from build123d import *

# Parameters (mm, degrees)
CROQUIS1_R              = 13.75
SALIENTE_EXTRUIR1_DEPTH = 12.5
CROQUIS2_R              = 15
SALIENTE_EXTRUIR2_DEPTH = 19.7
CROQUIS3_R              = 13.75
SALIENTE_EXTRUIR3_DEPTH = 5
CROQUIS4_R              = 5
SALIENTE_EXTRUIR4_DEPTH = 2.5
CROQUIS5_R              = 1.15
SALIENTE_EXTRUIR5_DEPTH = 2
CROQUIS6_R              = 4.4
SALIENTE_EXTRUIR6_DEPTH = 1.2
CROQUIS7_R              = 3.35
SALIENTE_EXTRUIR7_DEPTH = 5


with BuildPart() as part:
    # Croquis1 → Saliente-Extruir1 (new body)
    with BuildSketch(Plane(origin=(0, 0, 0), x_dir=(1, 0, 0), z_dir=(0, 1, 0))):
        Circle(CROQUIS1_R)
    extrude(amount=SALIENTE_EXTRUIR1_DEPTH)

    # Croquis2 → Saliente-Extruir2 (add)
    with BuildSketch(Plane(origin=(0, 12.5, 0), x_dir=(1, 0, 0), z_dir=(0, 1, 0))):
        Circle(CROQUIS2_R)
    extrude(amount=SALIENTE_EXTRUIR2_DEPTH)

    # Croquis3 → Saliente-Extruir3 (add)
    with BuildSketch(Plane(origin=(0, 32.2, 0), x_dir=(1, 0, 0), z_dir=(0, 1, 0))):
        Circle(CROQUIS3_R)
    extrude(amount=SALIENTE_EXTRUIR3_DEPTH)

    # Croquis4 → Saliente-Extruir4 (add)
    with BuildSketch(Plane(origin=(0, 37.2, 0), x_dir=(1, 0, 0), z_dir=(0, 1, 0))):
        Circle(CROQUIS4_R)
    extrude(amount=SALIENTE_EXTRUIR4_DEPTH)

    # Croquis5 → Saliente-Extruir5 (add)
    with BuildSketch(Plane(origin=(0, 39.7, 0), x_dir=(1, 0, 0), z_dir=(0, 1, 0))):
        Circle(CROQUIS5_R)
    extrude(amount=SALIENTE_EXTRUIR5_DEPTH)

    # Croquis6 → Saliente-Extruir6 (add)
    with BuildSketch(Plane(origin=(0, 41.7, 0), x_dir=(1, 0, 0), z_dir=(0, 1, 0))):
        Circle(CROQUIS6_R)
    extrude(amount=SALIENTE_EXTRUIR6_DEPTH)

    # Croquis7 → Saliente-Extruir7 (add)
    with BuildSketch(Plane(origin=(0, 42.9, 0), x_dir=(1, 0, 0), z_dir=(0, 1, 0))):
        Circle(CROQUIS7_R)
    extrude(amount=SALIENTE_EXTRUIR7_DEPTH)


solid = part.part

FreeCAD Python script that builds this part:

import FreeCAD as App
import Part
import Sketcher

doc = App.newDocument("Part")
body = doc.addObject("PartDesign::Body", "Body")

# Sketch on XZ plane
sketch1 = body.newObject("Sketcher::SketchObject", "Sketch")
sketch1.AttachmentSupport = (doc.getObject("XZ_Plane"), [""])
sketch1.MapMode = "FlatFace"
sketch1.addGeometry(Part.Circle(App.Vector(0, 0, 0), App.Vector(0, 0, 1), 14), False)
sketch1.addConstraint(Sketcher.Constraint("Coincident", 0, 3, -1, 1))
sketch1.addConstraint(Sketcher.Constraint("Diameter", 0, 27.5))
pad1 = body.newObject("PartDesign::Pad", "Pad")
pad1.Profile = sketch1
pad1.Length = 12.5
pad1.Reversed = True

# Sketch on XZ plane
sketch2 = body.newObject("Sketcher::SketchObject", "Sketch001")
sketch2.AttachmentSupport = (doc.getObject("XZ_Plane"), [""])
sketch2.MapMode = "FlatFace"
sketch2.AttachmentOffset = App.Placement(App.Vector(0, 0, -12.5), App.Rotation())
sketch2.addGeometry(Part.Circle(App.Vector(0, 0, 0), App.Vector(0, 0, 1), 15), False)
sketch2.addConstraint(Sketcher.Constraint("Coincident", 0, 3, -1, 1))
sketch2.addConstraint(Sketcher.Constraint("Diameter", 0, 30.0))
pad2 = body.newObject("PartDesign::Pad", "Pad001")
pad2.Profile = sketch2
pad2.Length = 19.7
pad2.Reversed = True

# Sketch on XZ plane
sketch3 = body.newObject("Sketcher::SketchObject", "Sketch002")
sketch3.AttachmentSupport = (doc.getObject("XZ_Plane"), [""])
sketch3.MapMode = "FlatFace"
sketch3.AttachmentOffset = App.Placement(App.Vector(0, 0, -32.2), App.Rotation())
sketch3.addGeometry(Part.Circle(App.Vector(0, 0, 0), App.Vector(0, 0, 1), 14), False)
sketch3.addConstraint(Sketcher.Constraint("Coincident", 0, 3, -1, 1))
sketch3.addConstraint(Sketcher.Constraint("Diameter", 0, 27.5))
pad3 = body.newObject("PartDesign::Pad", "Pad002")
pad3.Profile = sketch3
pad3.Length = 5
pad3.Reversed = True

# Sketch on XZ plane
sketch4 = body.newObject("Sketcher::SketchObject", "Sketch003")
sketch4.AttachmentSupport = (doc.getObject("XZ_Plane"), [""])
sketch4.MapMode = "FlatFace"
sketch4.AttachmentOffset = App.Placement(App.Vector(0, 0, -37.2), App.Rotation())
sketch4.addGeometry(Part.Circle(App.Vector(0, 0, 0), App.Vector(0, 0, 1), 5), False)
sketch4.addConstraint(Sketcher.Constraint("Coincident", 0, 3, -1, 1))
sketch4.addConstraint(Sketcher.Constraint("Diameter", 0, 10.0))
pad4 = body.newObject("PartDesign::Pad", "Pad003")
pad4.Profile = sketch4
pad4.Length = 2.5
pad4.Reversed = True

# Sketch on XZ plane
sketch5 = body.newObject("Sketcher::SketchObject", "Sketch004")
sketch5.AttachmentSupport = (doc.getObject("XZ_Plane"), [""])
sketch5.MapMode = "FlatFace"
sketch5.AttachmentOffset = App.Placement(App.Vector(0, 0, -39.7), App.Rotation())
sketch5.addGeometry(Part.Circle(App.Vector(0, 0, 0), App.Vector(0, 0, 1), 1.1), False)
sketch5.addConstraint(Sketcher.Constraint("Coincident", 0, 3, -1, 1))
sketch5.addConstraint(Sketcher.Constraint("Diameter", 0, 2.3))
pad5 = body.newObject("PartDesign::Pad", "Pad004")
pad5.Profile = sketch5
pad5.Length = 2
pad5.Reversed = True

# Sketch on XZ plane
sketch6 = body.newObject("Sketcher::SketchObject", "Sketch005")
sketch6.AttachmentSupport = (doc.getObject("XZ_Plane"), [""])
sketch6.MapMode = "FlatFace"
sketch6.AttachmentOffset = App.Placement(App.Vector(0, 0, -41.7), App.Rotation())
sketch6.addGeometry(Part.Circle(App.Vector(0, 0, 0), App.Vector(0, 0, 1), 4.4), False)
sketch6.addConstraint(Sketcher.Constraint("Coincident", 0, 3, -1, 1))
sketch6.addConstraint(Sketcher.Constraint("Diameter", 0, 8.8))
pad6 = body.newObject("PartDesign::Pad", "Pad005")
pad6.Profile = sketch6
pad6.Length = 1.2
pad6.Reversed = True

# Sketch on XZ plane
sketch7 = body.newObject("Sketcher::SketchObject", "Sketch006")
sketch7.AttachmentSupport = (doc.getObject("XZ_Plane"), [""])
sketch7.MapMode = "FlatFace"
sketch7.AttachmentOffset = App.Placement(App.Vector(0, 0, -42.9), App.Rotation())
sketch7.addGeometry(Part.Circle(App.Vector(0, 0, 0), App.Vector(0, 0, 1), 3.4), False)
sketch7.addConstraint(Sketcher.Constraint("Coincident", 0, 3, -1, 1))
sketch7.addConstraint(Sketcher.Constraint("Diameter", 0, 6.7))
pad7 = body.newObject("PartDesign::Pad", "Pad006")
pad7.Profile = sketch7
pad7.Length = 5
pad7.Reversed = True

doc.recompute()
